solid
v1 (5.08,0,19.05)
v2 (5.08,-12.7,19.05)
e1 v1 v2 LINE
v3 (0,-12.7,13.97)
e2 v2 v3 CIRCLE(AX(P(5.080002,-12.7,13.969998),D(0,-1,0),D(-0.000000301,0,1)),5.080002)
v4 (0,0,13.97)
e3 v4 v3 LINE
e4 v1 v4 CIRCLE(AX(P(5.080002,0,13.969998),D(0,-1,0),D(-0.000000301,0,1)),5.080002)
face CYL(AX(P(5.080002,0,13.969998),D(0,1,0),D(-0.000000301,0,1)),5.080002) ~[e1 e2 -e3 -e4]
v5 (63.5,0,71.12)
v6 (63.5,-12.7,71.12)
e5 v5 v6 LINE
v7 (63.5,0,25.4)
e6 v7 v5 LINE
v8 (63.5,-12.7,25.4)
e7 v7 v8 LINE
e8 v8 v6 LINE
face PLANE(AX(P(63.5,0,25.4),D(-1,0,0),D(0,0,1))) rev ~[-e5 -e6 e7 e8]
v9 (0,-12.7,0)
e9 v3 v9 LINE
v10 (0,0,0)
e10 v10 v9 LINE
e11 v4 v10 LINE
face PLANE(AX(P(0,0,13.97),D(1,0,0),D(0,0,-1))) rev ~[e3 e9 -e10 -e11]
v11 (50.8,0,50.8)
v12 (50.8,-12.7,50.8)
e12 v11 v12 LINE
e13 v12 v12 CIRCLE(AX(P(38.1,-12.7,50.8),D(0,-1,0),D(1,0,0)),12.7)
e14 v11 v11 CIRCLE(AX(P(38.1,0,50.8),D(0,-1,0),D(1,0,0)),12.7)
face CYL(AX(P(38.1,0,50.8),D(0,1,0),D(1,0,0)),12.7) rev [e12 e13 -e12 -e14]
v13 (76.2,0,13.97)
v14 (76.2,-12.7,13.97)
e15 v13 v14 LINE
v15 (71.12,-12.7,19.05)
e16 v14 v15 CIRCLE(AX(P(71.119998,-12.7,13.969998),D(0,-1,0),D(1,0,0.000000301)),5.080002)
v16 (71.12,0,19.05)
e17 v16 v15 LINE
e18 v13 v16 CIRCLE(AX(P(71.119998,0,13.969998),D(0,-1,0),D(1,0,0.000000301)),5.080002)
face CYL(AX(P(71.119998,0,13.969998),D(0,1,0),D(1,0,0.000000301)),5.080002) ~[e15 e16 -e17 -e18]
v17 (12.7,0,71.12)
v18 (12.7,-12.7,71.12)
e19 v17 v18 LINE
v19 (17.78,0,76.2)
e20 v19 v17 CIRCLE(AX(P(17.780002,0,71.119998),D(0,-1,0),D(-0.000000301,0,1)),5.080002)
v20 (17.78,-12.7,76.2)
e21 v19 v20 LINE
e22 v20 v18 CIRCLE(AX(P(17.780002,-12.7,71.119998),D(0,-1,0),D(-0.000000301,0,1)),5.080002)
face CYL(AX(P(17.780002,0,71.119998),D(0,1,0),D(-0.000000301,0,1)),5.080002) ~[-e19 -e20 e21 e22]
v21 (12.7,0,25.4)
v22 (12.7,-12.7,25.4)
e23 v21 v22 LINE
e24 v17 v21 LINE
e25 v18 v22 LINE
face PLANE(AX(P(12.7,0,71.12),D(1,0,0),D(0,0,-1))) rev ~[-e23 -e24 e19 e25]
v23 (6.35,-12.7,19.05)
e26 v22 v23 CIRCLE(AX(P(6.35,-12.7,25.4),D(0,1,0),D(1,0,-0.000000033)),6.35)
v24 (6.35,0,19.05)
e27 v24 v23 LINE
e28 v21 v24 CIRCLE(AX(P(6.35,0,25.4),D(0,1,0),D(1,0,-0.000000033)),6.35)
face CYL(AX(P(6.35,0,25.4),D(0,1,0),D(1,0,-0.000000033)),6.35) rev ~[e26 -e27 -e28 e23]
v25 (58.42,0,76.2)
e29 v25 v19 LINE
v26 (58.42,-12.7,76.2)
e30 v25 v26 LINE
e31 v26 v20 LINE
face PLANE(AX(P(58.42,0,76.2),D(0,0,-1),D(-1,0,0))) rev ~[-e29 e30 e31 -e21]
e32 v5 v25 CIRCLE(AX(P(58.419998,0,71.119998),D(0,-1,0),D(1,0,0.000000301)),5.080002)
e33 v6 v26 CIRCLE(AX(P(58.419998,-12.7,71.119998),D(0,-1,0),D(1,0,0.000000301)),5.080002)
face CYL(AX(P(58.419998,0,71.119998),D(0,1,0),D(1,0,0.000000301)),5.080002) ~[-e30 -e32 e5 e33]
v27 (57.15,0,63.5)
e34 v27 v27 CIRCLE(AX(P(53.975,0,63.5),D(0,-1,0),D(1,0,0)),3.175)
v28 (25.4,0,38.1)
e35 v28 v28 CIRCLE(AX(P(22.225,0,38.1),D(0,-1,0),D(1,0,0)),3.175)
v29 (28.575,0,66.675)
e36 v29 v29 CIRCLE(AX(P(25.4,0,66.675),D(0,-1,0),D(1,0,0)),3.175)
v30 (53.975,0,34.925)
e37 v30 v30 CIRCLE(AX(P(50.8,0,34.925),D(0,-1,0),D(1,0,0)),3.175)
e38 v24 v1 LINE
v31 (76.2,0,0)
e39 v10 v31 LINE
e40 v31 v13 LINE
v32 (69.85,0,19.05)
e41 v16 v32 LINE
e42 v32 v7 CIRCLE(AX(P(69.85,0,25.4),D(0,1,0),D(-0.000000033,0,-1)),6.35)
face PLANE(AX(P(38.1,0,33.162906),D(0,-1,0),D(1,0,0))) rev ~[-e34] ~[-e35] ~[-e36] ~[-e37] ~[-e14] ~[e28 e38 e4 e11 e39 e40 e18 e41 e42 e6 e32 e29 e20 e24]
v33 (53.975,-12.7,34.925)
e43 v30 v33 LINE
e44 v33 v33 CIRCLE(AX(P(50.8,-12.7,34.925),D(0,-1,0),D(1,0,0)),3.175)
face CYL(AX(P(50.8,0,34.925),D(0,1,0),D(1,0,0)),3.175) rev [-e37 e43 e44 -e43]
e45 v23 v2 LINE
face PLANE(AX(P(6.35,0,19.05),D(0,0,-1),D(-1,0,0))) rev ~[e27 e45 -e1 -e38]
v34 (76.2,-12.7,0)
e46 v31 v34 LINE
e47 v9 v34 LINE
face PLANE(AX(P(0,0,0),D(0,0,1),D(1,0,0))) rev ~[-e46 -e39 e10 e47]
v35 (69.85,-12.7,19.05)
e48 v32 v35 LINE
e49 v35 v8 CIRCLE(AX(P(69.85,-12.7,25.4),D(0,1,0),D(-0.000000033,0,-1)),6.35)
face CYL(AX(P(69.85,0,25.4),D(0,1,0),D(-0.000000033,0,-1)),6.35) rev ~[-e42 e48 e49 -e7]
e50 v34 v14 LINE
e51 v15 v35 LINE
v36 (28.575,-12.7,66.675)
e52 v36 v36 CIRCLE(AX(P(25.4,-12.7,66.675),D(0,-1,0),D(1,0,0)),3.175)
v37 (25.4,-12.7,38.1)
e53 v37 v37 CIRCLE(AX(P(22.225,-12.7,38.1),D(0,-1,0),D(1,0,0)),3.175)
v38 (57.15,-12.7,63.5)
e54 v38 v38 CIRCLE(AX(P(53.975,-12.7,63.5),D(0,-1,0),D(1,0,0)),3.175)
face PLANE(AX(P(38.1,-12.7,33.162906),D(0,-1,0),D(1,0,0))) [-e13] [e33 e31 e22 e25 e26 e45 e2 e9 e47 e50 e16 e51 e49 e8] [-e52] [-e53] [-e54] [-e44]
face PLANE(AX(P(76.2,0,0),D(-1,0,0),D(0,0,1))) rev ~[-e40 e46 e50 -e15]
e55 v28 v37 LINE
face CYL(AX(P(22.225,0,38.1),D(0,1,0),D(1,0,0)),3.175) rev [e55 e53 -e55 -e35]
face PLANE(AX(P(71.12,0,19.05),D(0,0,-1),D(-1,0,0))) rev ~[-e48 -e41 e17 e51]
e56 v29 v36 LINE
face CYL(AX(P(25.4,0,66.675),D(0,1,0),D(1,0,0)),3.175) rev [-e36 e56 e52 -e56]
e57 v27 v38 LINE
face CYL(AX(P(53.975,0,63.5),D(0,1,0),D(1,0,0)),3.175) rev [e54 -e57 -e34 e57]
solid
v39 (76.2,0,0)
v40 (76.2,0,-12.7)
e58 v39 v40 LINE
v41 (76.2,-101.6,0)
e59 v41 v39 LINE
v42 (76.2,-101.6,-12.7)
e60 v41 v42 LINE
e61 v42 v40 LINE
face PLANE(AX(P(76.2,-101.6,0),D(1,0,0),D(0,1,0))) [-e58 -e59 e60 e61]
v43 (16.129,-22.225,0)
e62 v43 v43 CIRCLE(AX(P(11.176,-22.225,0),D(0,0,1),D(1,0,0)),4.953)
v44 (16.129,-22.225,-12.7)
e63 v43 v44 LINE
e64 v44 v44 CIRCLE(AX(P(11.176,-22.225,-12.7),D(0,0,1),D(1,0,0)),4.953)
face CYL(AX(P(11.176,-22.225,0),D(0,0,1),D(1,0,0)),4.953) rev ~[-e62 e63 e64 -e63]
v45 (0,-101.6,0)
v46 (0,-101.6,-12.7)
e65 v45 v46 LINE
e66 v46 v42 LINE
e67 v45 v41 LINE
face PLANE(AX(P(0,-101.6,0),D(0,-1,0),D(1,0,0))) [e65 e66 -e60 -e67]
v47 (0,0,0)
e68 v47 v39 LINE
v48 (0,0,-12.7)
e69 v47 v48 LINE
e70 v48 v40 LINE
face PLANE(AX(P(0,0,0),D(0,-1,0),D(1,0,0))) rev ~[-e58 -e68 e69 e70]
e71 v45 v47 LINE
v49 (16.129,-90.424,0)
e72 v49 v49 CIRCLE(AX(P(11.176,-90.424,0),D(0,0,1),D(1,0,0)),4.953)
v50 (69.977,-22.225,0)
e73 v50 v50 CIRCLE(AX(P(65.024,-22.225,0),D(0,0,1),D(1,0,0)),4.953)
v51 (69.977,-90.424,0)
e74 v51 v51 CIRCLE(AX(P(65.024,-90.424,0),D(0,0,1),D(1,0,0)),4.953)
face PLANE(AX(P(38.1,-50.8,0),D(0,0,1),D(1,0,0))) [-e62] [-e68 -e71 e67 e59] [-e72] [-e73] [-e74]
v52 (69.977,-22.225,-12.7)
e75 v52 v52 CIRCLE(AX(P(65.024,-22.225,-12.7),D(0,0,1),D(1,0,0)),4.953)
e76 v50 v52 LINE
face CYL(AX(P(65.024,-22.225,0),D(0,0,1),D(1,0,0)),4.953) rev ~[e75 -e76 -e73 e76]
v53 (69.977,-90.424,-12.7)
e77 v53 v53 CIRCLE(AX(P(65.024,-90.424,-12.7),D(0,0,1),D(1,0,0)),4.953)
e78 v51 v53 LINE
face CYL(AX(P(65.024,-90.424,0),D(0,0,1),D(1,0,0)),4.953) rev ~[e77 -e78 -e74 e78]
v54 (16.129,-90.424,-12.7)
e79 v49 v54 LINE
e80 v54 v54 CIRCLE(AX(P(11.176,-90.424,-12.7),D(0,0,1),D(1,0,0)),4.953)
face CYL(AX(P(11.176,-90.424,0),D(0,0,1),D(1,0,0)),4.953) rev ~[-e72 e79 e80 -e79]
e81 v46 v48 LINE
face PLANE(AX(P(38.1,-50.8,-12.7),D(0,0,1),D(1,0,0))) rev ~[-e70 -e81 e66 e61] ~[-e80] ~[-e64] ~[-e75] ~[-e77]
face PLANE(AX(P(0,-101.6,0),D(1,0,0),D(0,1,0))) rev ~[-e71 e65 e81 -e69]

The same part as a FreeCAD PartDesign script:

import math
import FreeCAD as App
import Part
import Sketcher
from FreeCAD import Vector
Q = App.Units.Quantity

doc = App.newDocument("Part")
body = doc.addObject("PartDesign::Body", "Body")

# Sketch on XY plane
sketch1 = doc.addObject("Sketcher::SketchObject", "Sketch")
body.addObject(sketch1)
sketch1.AttachmentSupport = (doc.XY_Plane, [""])
sketch1.MapMode = "FlatFace"
sketch1.addGeometry([
    Part.LineSegment(Vector(0, 0, 0), Vector(0, -101.6, 0)),  # 0
    Part.LineSegment(Vector(0, -101.6, 0), Vector(76.2, -101.6, 0)),  # 1
    Part.LineSegment(Vector(76.2, -101.6, 0), Vector(76.2, 0, 0)),  # 2
    Part.LineSegment(Vector(76.2, 0, 0), Vector(0, 0, 0)),  # 3
    Part.Circle(Vector(11.176, -90.424, 0), Vector(0, 0, 1), 4.953),  # 4
    Part.Circle(Vector(65.024, -90.424, 0), Vector(0, 0, 1), 4.953),  # 5
    Part.Circle(Vector(11.176, -22.225, 0), Vector(0, 0, 1), 4.953),  # 6
    Part.Circle(Vector(65.024, -22.225, 0), Vector(0, 0, 1), 4.953),  # 7
], False)
sketch1.addConstraint([
    Sketcher.Constraint("Coincident", 0, 2, 1, 1),
    Sketcher.Constraint("Coincident", 1, 2, 2, 1),
    Sketcher.Constraint("Coincident", 2, 2, 3, 1),
    Sketcher.Constraint("Coincident", 3, 2, 0, 1),
    Sketcher.Constraint("Vertical", 0),
    Sketcher.Constraint("Horizontal", 1),
    Sketcher.Constraint("Vertical", 2),
    Sketcher.Constraint("Horizontal", 3),
    Sketcher.Constraint("Coincident", 3, 2, -1, 1),
    Sketcher.Constraint("Equal", 4, 5),
    Sketcher.Constraint("Equal", 5, 6),
    Sketcher.Constraint("Equal", 6, 7),
    Sketcher.Constraint("Horizontal", 4, 3, 5, 3),
    Sketcher.Constraint("Horizontal", 6, 3, 7, 3),
    Sketcher.Constraint("Vertical", 4, 3, 6, 3),
    Sketcher.Constraint("Vertical", 5, 3, 7, 3),
    Sketcher.Constraint("Diameter", 4, Q("0.39 in")),
    Sketcher.Constraint("DistanceX", 1, 1, 1, 2, Q("3 in")),
    Sketcher.Constraint("DistanceY", 0, 2, 0, 1, Q("4 in")),
    Sketcher.Constraint("DistanceX", -1, 1, 4, 3, Q("0.44 in")),
    Sketcher.Constraint("DistanceY", 4, 3, -1, 1, Q("3.56 in")),
    Sketcher.Constraint("DistanceX", -1, 1, 5, 3, Q("2.56 in")),
    Sketcher.Constraint("DistanceY", 6, 3, -1, 1, Q("0.875 in")),
])
pad1 = doc.addObject("PartDesign::Pad", "Pad")
body.addObject(pad1)
pad1.Profile = sketch1
pad1.Length = Q("0.5 in")
pad1.Reversed = True
body2 = doc.addObject("PartDesign::Body", "Body001")

# Sketch on XZ plane
sketch2 = doc.addObject("Sketcher::SketchObject", "Sketch001")
body2.addObject(sketch2)
sketch2.AttachmentSupport = (doc.getObject("XZ_Plane001"), [""])
sketch2.MapMode = "FlatFace"
sketch2.addGeometry([
    Part.LineSegment(Vector(0, 13.97, 0), Vector(0, 0, 0)),  # 0
    Part.LineSegment(Vector(0, 0, 0), Vector(76.2, 0, 0)),  # 1
    Part.LineSegment(Vector(76.2, 0, 0), Vector(76.2, 13.97, 0)),  # 2
    Part.ArcOfCircle(Part.Circle(Vector(71.119998, 13.969998, 0), Vector(0, 0, 1), 5.080002), math.radians(0.000017), math.radians(89.999983)),  # 3
    Part.LineSegment(Vector(71.12, 19.05, 0), Vector(69.85, 19.05, 0)),  # 4
    Part.ArcOfCircle(Part.Circle(Vector(69.85, 25.4, 0), Vector(0, 0, 1), 6.35), math.radians(-179.999998), math.radians(-90.000002)),  # 5
    Part.LineSegment(Vector(63.5, 25.4, 0), Vector(63.5, 71.12, 0)),  # 6
    Part.ArcOfCircle(Part.Circle(Vector(58.419998, 71.119998, 0), Vector(0, 0, 1), 5.080002), math.radians(0.000017), math.radians(89.999983)),  # 7
    Part.LineSegment(Vector(58.42, 76.2, 0), Vector(17.78, 76.2, 0)),  # 8
    Part.ArcOfCircle(Part.Circle(Vector(17.780002, 71.119998, 0), Vector(0, 0, 1), 5.080002), math.radians(90.000017), math.radians(179.999983)),  # 9
    Part.LineSegment(Vector(12.7, 71.12, 0), Vector(12.7, 25.4, 0)),  # 10
    Part.ArcOfCircle(Part.Circle(Vector(6.35, 25.4, 0), Vector(0, 0, 1), 6.35), math.radians(-89.999998), math.radians(-0.000002)),  # 11
    Part.LineSegment(Vector(6.35, 19.05, 0), Vector(5.08, 19.05, 0)),  # 12
    Part.ArcOfCircle(Part.Circle(Vector(5.080002, 13.969998, 0), Vector(0, 0, 1), 5.080002), math.radians(90.000017), math.radians(179.999983)),  # 13
    Part.Circle(Vector(22.225, 38.1, 0), Vector(0, 0, 1), 3.175),  # 14
    Part.Circle(Vector(50.8, 34.925, 0), Vector(0, 0, 1), 3.175),  # 15
    Part.Circle(Vector(25.4, 66.675, 0), Vector(0, 0, 1), 3.175),  # 16
    Part.Circle(Vector(38.1, 50.8, 0), Vector(0, 0, 1), 12.7),  # 17
    Part.Circle(Vector(53.975, 63.5, 0), Vector(0, 0, 1), 3.175),  # 18
], False)
sketch2.addConstraint([
    Sketcher.Constraint("Coincident", 0, 2, 1, 1),
    Sketcher.Constraint("Coincident", 1, 2, 2, 1),
    Sketcher.Constraint("Tangent", 2, 2, 3, 1),
    Sketcher.Constraint("Tangent", 3, 2, 4, 1),
    Sketcher.Constraint("Tangent", 4, 2, 5, 2),
    Sketcher.Constraint("Tangent", 5, 1, 6, 1),
    Sketcher.Constraint("Tangent", 6, 2, 7, 1),
    Sketcher.Constraint("Tangent", 7, 2, 8, 1),
    Sketcher.Constraint("Tangent", 8, 2, 9, 1),
    Sketcher.Constraint("Tangent", 9, 2, 10, 1),
    Sketcher.Constraint("Tangent", 10, 2, 11, 2),
    Sketcher.Constraint("Tangent", 11, 1, 12, 1),
    Sketcher.Constraint("Tangent", 12, 2, 13, 1),
    Sketcher.Constraint("Tangent", 13, 2, 0, 1),
    Sketcher.Constraint("Vertical", 0),
    Sketcher.Constraint("Horizontal", 1),
    Sketcher.Constraint("Vertical", 2),
    Sketcher.Constraint("Horizontal", 4),
    Sketcher.Constraint("Vertical", 6),
    Sketcher.Constraint("Horizontal", 8),
    Sketcher.Constraint("Vertical", 10),
    Sketcher.Constraint("Horizontal", 12),
    Sketcher.Constraint("Coincident", 0, 2, -1, 1),
    Sketcher.Constraint("Equal", 3, 7),
    Sketcher.Constraint("Equal", 7, 9),
    Sketcher.Constraint("Equal", 5, 11),
    Sketcher.Constraint("Equal", 9, 13),
    Sketcher.Constraint("Equal", 14, 15),
    Sketcher.Constraint("Equal", 15, 16),
    Sketcher.Constraint("Equal", 16, 18),
    Sketcher.Constraint("Horizontal", 5, 3, 11, 3),
    Sketcher.Constraint("Equal", 4, 12),
    Sketcher.Constraint("Diameter", 17, Q("1 in")),
    Sketcher.Constraint("Radius", 3, Q("0.2000001 in")),
    Sketcher.Constraint("Diameter", 14, Q("0.25 in")),
    Sketcher.Constraint("DistanceX", 1, 1, 1, 2, Q("3 in")),
    Sketcher.Constraint("Radius", 5, Q("0.25 in")),
    Sketcher.Constraint("DistanceX", 8, 2, 8, 1, Q("1.6 in")),
    Sketcher.Constraint("DistanceY", 6, 1, 6, 2, Q("1.8 in")),
    Sketcher.Constraint("DistanceY", -1, 1, 5, 3, Q("1 in")),
    Sketcher.Constraint("DistanceX", -1, 1, 15, 3, Q("2 in")),
    Sketcher.Constraint("DistanceX", -1, 1, 16, 3, Q("1 in")),
    Sketcher.Constraint("DistanceY", -1, 1, 17, 3, Q("2 in")),
    Sketcher.Constraint("DistanceX", 17, 3, 6, 2, Q("1 in")),
    Sketcher.Constraint("DistanceY", -1, 1, 14, 3, Q("1.5 in")),
    Sketcher.Constraint("DistanceY", -1, 1, 18, 3, Q("2.5 in")),
    Sketcher.Constraint("DistanceY", 15, 3, 16, 3, Q("1.25 in")),
    Sketcher.Constraint("DistanceX", -1, 1, 14, 3, Q("0.875 in")),
    Sketcher.Constraint("DistanceY", -1, 1, 15, 3, Q("1.375 in")),
    Sketcher.Constraint("DistanceX", -1, 1, 18, 3, Q("2.125 in")),
])
pad2 = doc.addObject("PartDesign::Pad", "Pad001")
body2.addObject(pad2)
pad2.Profile = sketch2
pad2.Length = Q("0.5 in")

doc.recompute()
